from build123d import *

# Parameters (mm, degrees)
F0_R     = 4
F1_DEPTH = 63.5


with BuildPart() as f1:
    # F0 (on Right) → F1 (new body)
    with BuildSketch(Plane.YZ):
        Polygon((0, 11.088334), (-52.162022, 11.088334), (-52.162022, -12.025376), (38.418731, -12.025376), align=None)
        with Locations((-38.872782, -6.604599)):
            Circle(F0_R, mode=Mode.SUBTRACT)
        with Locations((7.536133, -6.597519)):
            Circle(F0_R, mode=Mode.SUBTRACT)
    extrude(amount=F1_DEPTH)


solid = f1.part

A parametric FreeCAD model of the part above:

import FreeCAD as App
import Part
import Sketcher

V = App.Vector
Q = App.Units.Quantity

doc = App.newDocument("Part")
body = doc.addObject("PartDesign::Body", "Body")

sketch1 = body.newObject("Sketcher::SketchObject", "Sketch")
sketch1.AttachmentSupport = (doc.getObject("YZ_Plane"), [""])
sketch1.MapMode = "FlatFace"
sketch1.addGeometry([
    Part.LineSegment(V(0, 11.1, 0), V(-52.2, 11.1, 0)),
    Part.LineSegment(V(-52.2, 11.1, 0), V(-52.2, -12, 0)),
    Part.LineSegment(V(-52.2, -12, 0), V(38.4, -12, 0)),
    Part.LineSegment(V(38.4, -12, 0), V(0, 11.1, 0)),
    Part.Circle(V(-38.9, -6.6, 0), V(0, 0, 1), 4),
    Part.Circle(V(7.5, -6.6, 0), V(0, 0, 1), 4),
], False)
sketch1.addConstraint([
    Sketcher.Constraint("Coincident", 0, 2, 1, 1),
    Sketcher.Constraint("Coincident", 1, 2, 2, 1),
    Sketcher.Constraint("Coincident", 2, 2, 3, 1),
    Sketcher.Constraint("Coincident", 3, 2, 0, 1),
    Sketcher.Constraint("Horizontal", 0),
    Sketcher.Constraint("Vertical", 1),
    Sketcher.Constraint("Horizontal", 2),
    Sketcher.Constraint("Equal", 4, 5),
    Sketcher.Constraint("PointOnObject", 3, 2, -2),
    Sketcher.Constraint("Diameter", 4, Q("8 mm")),
    Sketcher.Constraint("DistanceY", 1, 2, 1, 1, Q("23.11371 mm")),
    Sketcher.Constraint("DistanceY", 4, 3, -1, 1, Q("6.604599 mm")),
    Sketcher.Constraint("DistanceX", 5, 3, 2, 2, Q("30.882598 mm")),
    Sketcher.Constraint("DistanceX", 0, 2, 0, 1, Q("52.162022 mm")),
    Sketcher.Constraint("DistanceX", 2, 1, 2, 2, Q("90.580753 mm")),
    Sketcher.Constraint("DistanceY", 5, 3, -1, 1, Q("6.597519 mm")),
    Sketcher.Constraint("DistanceX", 0, 2, 4, 3, Q("13.28924 mm")),
    Sketcher.Constraint("DistanceY", -1, 1, 0, 2, Q("11.088334 mm")),
])
pad1 = body.newObject("PartDesign::Pad", "Pad")
pad1.Profile = sketch1
pad1.Length = 63.5

doc.recompute()
